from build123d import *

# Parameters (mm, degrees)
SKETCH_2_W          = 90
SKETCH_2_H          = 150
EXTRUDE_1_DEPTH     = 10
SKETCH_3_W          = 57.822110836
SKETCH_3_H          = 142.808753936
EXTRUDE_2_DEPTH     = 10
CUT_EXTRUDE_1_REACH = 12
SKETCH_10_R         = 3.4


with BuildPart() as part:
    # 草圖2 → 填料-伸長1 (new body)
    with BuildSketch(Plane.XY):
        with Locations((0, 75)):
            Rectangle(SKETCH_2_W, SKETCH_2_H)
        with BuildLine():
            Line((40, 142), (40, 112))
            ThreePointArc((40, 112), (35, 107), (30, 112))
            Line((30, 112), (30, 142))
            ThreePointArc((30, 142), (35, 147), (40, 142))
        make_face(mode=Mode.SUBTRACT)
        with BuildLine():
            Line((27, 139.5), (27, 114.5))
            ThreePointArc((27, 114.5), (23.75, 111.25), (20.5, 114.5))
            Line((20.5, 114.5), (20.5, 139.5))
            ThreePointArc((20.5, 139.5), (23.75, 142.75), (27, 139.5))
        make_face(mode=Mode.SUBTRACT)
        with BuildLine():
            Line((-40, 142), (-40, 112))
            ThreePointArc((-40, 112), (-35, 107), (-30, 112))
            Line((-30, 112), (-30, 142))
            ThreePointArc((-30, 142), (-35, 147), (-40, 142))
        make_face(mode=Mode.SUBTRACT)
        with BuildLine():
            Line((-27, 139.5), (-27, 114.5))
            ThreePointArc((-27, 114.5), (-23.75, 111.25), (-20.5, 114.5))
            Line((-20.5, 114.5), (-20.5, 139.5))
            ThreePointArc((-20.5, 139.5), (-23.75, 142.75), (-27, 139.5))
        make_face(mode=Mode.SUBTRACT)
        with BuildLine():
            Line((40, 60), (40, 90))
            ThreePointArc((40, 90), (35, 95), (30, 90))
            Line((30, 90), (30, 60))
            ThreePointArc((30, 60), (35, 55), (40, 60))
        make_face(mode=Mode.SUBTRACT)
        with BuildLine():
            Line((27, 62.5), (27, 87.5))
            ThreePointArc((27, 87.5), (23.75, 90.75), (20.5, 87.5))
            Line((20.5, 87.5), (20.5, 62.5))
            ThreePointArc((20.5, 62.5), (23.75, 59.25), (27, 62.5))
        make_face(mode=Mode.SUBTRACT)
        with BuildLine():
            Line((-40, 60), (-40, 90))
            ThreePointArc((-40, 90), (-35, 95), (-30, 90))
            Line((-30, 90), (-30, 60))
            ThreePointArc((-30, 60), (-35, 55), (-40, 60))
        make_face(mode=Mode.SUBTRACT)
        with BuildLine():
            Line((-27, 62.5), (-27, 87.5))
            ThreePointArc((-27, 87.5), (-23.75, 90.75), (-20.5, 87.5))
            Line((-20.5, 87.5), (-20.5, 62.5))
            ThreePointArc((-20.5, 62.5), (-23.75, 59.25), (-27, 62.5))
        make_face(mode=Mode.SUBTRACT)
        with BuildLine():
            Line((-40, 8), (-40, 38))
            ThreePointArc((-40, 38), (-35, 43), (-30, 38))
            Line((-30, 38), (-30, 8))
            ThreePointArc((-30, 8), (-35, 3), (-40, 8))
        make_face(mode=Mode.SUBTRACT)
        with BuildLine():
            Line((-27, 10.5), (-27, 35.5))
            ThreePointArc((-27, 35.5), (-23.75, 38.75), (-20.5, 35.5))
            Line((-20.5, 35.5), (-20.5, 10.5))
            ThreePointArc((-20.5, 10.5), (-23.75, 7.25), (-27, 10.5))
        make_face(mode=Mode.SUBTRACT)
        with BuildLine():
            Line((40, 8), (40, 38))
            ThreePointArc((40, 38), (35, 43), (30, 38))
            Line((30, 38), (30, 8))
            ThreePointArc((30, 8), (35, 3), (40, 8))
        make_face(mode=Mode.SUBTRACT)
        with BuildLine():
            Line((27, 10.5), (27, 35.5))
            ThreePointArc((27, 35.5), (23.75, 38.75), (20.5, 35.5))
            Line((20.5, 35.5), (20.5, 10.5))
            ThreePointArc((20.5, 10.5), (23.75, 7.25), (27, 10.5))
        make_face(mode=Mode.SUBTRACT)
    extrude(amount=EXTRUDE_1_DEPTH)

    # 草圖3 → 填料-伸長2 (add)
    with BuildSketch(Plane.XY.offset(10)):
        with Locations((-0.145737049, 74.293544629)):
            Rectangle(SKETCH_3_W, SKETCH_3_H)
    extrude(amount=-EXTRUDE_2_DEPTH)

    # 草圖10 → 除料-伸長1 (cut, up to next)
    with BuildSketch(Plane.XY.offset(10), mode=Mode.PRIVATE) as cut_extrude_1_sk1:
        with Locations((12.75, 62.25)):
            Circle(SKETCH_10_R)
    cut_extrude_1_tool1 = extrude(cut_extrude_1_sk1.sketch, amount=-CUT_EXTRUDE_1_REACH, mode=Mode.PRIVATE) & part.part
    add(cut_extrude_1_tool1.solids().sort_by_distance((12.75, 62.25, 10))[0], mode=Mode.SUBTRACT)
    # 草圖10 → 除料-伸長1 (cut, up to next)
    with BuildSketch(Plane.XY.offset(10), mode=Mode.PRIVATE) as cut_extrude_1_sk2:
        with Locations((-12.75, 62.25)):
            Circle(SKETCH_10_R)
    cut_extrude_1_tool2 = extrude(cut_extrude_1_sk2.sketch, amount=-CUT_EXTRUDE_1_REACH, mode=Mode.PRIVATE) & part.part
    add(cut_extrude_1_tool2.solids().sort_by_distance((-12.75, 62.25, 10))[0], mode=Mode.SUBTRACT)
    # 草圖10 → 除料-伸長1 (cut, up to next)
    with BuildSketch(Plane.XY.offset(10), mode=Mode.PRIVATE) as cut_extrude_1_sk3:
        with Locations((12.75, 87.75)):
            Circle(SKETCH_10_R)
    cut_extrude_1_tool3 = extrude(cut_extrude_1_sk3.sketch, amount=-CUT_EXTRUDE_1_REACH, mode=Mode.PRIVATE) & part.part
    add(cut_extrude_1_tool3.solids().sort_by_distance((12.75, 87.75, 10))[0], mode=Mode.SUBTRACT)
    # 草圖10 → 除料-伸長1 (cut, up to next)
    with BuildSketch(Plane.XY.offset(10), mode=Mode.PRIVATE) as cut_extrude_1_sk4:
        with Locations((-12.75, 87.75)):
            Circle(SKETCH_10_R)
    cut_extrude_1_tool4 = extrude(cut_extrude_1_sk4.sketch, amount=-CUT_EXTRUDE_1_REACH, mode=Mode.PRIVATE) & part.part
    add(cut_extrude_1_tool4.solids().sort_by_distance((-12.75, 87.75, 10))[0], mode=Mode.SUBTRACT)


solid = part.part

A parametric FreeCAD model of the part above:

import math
import FreeCAD as App
import Part
import Sketcher
Q = App.Units.Quantity


def add_polygon(sketch, points):
    """Adds a closed chain of lines whose ends are joined by coincident constraints."""
    first, n = sketch.GeometryCount, len(points)
    for a, b in zip(points, points[1:] + points[:1]):
        sketch.addGeometry(Part.LineSegment(App.Vector(*a, 0), App.Vector(*b, 0)), False)
    for i in range(n):
        sketch.addConstraint(Sketcher.Constraint("Coincident", first + i, 2, first + (i + 1) % n, 1))

doc = App.newDocument("Part")
body = doc.addObject("PartDesign::Body", "Body")

# Sketch on XY plane
sketch1 = doc.addObject("Sketcher::SketchObject", "Sketch")
body.addObject(sketch1)
sketch1.AttachmentSupport = (doc.XY_Plane, [""])
sketch1.MapMode = "FlatFace"
add_polygon(sketch1, [(-45, 150), (-45, 0), (45, 0), (45, 150)])  # lines 0-3
sketch1.addGeometry(Part.ArcOfCircle(Part.Circle(App.Vector(-35, 8, 0), App.Vector(0, 0, 1), 5), math.radians(180), math.radians(360)), False)  # 4
sketch1.addGeometry(Part.LineSegment(App.Vector(-40, 8, 0), App.Vector(-40, 38, 0)), False)  # 5
sketch1.addGeometry(Part.ArcOfCircle(Part.Circle(App.Vector(-35, 38, 0), App.Vector(0, 0, 1), 5), math.radians(0), math.radians(180)), False)  # 6
sketch1.addGeometry(Part.LineSegment(App.Vector(-30, 38, 0), App.Vector(-30, 8, 0)), False)  # 7
sketch1.addGeometry(Part.ArcOfCircle(Part.Circle(App.Vector(-23.75, 10.5, 0), App.Vector(0, 0, 1), 3.25), math.radians(180), math.radians(360)), False)  # 8
sketch1.addGeometry(Part.LineSegment(App.Vector(-27, 10.5, 0), App.Vector(-27, 35.5, 0)), False)  # 9
sketch1.addGeometry(Part.ArcOfCircle(Part.Circle(App.Vector(-23.75, 35.5, 0), App.Vector(0, 0, 1), 3.25), math.radians(0), math.radians(180)), False)  # 10
sketch1.addGeometry(Part.LineSegment(App.Vector(-20.5, 35.5, 0), App.Vector(-20.5, 10.5, 0)), False)  # 11
sketch1.addGeometry(Part.LineSegment(App.Vector(27, 35.5, 0), App.Vector(27, 10.5, 0)), False)  # 12
sketch1.addGeometry(Part.ArcOfCircle(Part.Circle(App.Vector(23.75, 10.5, 0), App.Vector(0, 0, 1), 3.25), math.radians(180), math.radians(360)), False)  # 13
sketch1.addGeometry(Part.LineSegment(App.Vector(20.5, 10.5, 0), App.Vector(20.5, 35.5, 0)), False)  # 14
sketch1.addGeometry(Part.ArcOfCircle(Part.Circle(App.Vector(23.75, 35.5, 0), App.Vector(0, 0, 1), 3.25), math.radians(0), math.radians(180)), False)  # 15
sketch1.addGeometry(Part.LineSegment(App.Vector(40, 38, 0), App.Vector(40, 8, 0)), False)  # 16
sketch1.addGeometry(Part.ArcOfCircle(Part.Circle(App.Vector(35, 8, 0), App.Vector(0, 0, 1), 5), math.radians(180), math.radians(360)), False)  # 17
sketch1.addGeometry(Part.LineSegment(App.Vector(30, 8, 0), App.Vector(30, 38, 0)), False)  # 18
sketch1.addGeometry(Part.ArcOfCircle(Part.Circle(App.Vector(35, 38, 0), App.Vector(0, 0, 1), 5), math.radians(0), math.radians(180)), False)  # 19
sketch1.addGeometry(Part.ArcOfCircle(Part.Circle(App.Vector(-35, 60, 0), App.Vector(0, 0, 1), 5), math.radians(180), math.radians(360)), False)  # 20
sketch1.addGeometry(Part.LineSegment(App.Vector(-40, 60, 0), App.Vector(-40, 90, 0)), False)  # 21
sketch1.addGeometry(Part.ArcOfCircle(Part.Circle(App.Vector(-35, 90, 0), App.Vector(0, 0, 1), 5), math.radians(0), math.radians(180)), False)  # 22
sketch1.addGeometry(Part.LineSegment(App.Vector(-30, 90, 0), App.Vector(-30, 60, 0)), False)  # 23
sketch1.addGeometry(Part.ArcOfCircle(Part.Circle(App.Vector(-23.75, 62.5, 0), App.Vector(0, 0, 1), 3.25), math.radians(180), math.radians(360)), False)  # 24
sketch1.addGeometry(Part.LineSegment(App.Vector(-27, 62.5, 0), App.Vector(-27, 87.5, 0)), False)  # 25
sketch1.addGeometry(Part.ArcOfCircle(Part.Circle(App.Vector(-23.75, 87.5, 0), App.Vector(0, 0, 1), 3.25), math.radians(0), math.radians(180)), False)  # 26
sketch1.addGeometry(Part.LineSegment(App.Vector(-20.5, 87.5, 0), App.Vector(-20.5, 62.5, 0)), False)  # 27
sketch1.addGeometry(Part.LineSegment(App.Vector(-40, 112, 0), App.Vector(-40, 142, 0)), False)  # 28
sketch1.addGeometry(Part.ArcOfCircle(Part.Circle(App.Vector(-35, 142, 0), App.Vector(0, 0, 1), 5), math.radians(0), math.radians(180)), False)  # 29
sketch1.addGeometry(Part.LineSegment(App.Vector(-30, 142, 0), App.Vector(-30, 112, 0)), False)  # 30
sketch1.addGeometry(Part.ArcOfCircle(Part.Circle(App.Vector(-35, 112, 0), App.Vector(0, 0, 1), 5), math.radians(180), math.radians(360)), False)  # 31
sketch1.addGeometry(Part.LineSegment(App.Vector(-27, 114.5, 0), App.Vector(-27, 139.5, 0)), False)  # 32
sketch1.addGeometry(Part.ArcOfCircle(Part.Circle(App.Vector(-23.75, 139.5, 0), App.Vector(0, 0, 1), 3.25), math.radians(0), math.radians(180)), False)  # 33
sketch1.addGeometry(Part.LineSegment(App.Vector(-20.5, 139.5, 0), App.Vector(-20.5, 114.5, 0)), False)  # 34
sketch1.addGeometry(Part.ArcOfCircle(Part.Circle(App.Vector(-23.75, 114.5, 0), App.Vector(0, 0, 1), 3.25), math.radians(180), math.radians(360)), False)  # 35
sketch1.addGeometry(Part.LineSegment(App.Vector(27, 87.5, 0), App.Vector(27, 62.5, 0)), False)  # 36
sketch1.addGeometry(Part.ArcOfCircle(Part.Circle(App.Vector(23.75, 62.5, 0), App.Vector(0, 0, 1), 3.25), math.radians(180), math.radians(360)), False)  # 37
sketch1.addGeometry(Part.LineSegment(App.Vector(20.5, 62.5, 0), App.Vector(20.5, 87.5, 0)), False)  # 38
sketch1.addGeometry(Part.ArcOfCircle(Part.Circle(App.Vector(23.75, 87.5, 0), App.Vector(0, 0, 1), 3.25), math.radians(0), math.radians(180)), False)  # 39
sketch1.addGeometry(Part.LineSegment(App.Vector(40, 90, 0), App.Vector(40, 60, 0)), False)  # 40
sketch1.addGeometry(Part.ArcOfCircle(Part.Circle(App.Vector(35, 60, 0), App.Vector(0, 0, 1), 5), math.radians(180), math.radians(360)), False)  # 41
sketch1.addGeometry(Part.LineSegment(App.Vector(30, 60, 0), App.Vector(30, 90, 0)), False)  # 42
sketch1.addGeometry(Part.ArcOfCircle(Part.Circle(App.Vector(35, 90, 0), App.Vector(0, 0, 1), 5), math.radians(0), math.radians(180)), False)  # 43
sketch1.addGeometry(Part.ArcOfCircle(Part.Circle(App.Vector(23.75, 139.5, 0), App.Vector(0, 0, 1), 3.25), math.radians(0), math.radians(180)), False)  # 44
sketch1.addGeometry(Part.LineSegment(App.Vector(27, 139.5, 0), App.Vector(27, 114.5, 0)), False)  # 45
sketch1.addGeometry(Part.ArcOfCircle(Part.Circle(App.Vector(23.75, 114.5, 0), App.Vector(0, 0, 1), 3.25), math.radians(180), math.radians(360)), False)  # 46
sketch1.addGeometry(Part.LineSegment(App.Vector(20.5, 114.5, 0), App.Vector(20.5, 139.5, 0)), False)  # 47
sketch1.addGeometry(Part.ArcOfCircle(Part.Circle(App.Vector(35, 142, 0), App.Vector(0, 0, 1), 5), math.radians(0), math.radians(180)), False)  # 48
sketch1.addGeometry(Part.LineSegment(App.Vector(40, 142, 0), App.Vector(40, 112, 0)), False)  # 49
sketch1.addGeometry(Part.ArcOfCircle(Part.Circle(App.Vector(35, 112, 0), App.Vector(0, 0, 1), 5), math.radians(180), math.radians(360)), False)  # 50
sketch1.addGeometry(Part.LineSegment(App.Vector(30, 112, 0), App.Vector(30, 142, 0)), False)  # 51
sketch1.addConstraint(Sketcher.Constraint("Tangent", 4, 1, 5, 1))
sketch1.addConstraint(Sketcher.Constraint("Tangent", 5, 2, 6, 2))
sketch1.addConstraint(Sketcher.Constraint("Tangent", 6, 1, 7, 1))
sketch1.addConstraint(Sketcher.Constraint("Tangent", 7, 2, 4, 2))
sketch1.addConstraint(Sketcher.Constraint("Tangent", 8, 1, 9, 1))
sketch1.addConstraint(Sketcher.Constraint("Tangent", 9, 2, 10, 2))
sketch1.addConstraint(Sketcher.Constraint("Tangent", 10, 1, 11, 1))
sketch1.addConstraint(Sketcher.Constraint("Tangent", 11, 2, 8, 2))
sketch1.addConstraint(Sketcher.Constraint("Tangent", 12, 2, 13, 2))
sketch1.addConstraint(Sketcher.Constraint("Tangent", 13, 1, 14, 1))
sketch1.addConstraint(Sketcher.Constraint("Tangent", 14, 2, 15, 2))
sketch1.addConstraint(Sketcher.Constraint("Tangent", 15, 1, 12, 1))
sketch1.addConstraint(Sketcher.Constraint("Tangent", 16, 2, 17, 2))
sketch1.addConstraint(Sketcher.Constraint("Tangent", 17, 1, 18, 1))
sketch1.addConstraint(Sketcher.Constraint("Tangent", 18, 2, 19, 2))
sketch1.addConstraint(Sketcher.Constraint("Tangent", 19, 1, 16, 1))
sketch1.addConstraint(Sketcher.Constraint("Tangent", 20, 1, 21, 1))
sketch1.addConstraint(Sketcher.Constraint("Tangent", 21, 2, 22, 2))
sketch1.addConstraint(Sketcher.Constraint("Tangent", 22, 1, 23, 1))
sketch1.addConstraint(Sketcher.Constraint("Tangent", 23, 2, 20, 2))
sketch1.addConstraint(Sketcher.Constraint("Tangent", 24, 1, 25, 1))
sketch1.addConstraint(Sketcher.Constraint("Tangent", 25, 2, 26, 2))
sketch1.addConstraint(Sketcher.Constraint("Tangent", 26, 1, 27, 1))
sketch1.addConstraint(Sketcher.Constraint("Tangent", 27, 2, 24, 2))
sketch1.addConstraint(Sketcher.Constraint("Tangent", 28, 2, 29, 2))
sketch1.addConstraint(Sketcher.Constraint("Tangent", 29, 1, 30, 1))
sketch1.addConstraint(Sketcher.Constraint("Tangent", 30, 2, 31, 2))
sketch1.addConstraint(Sketcher.Constraint("Tangent", 31, 1, 28, 1))
sketch1.addConstraint(Sketcher.Constraint("Tangent", 32, 2, 33, 2))
sketch1.addConstraint(Sketcher.Constraint("Tangent", 33, 1, 34, 1))
sketch1.addConstraint(Sketcher.Constraint("Tangent", 34, 2, 35, 2))
sketch1.addConstraint(Sketcher.Constraint("Tangent", 35, 1, 32, 1))
sketch1.addConstraint(Sketcher.Constraint("Tangent", 36, 2, 37, 2))
sketch1.addConstraint(Sketcher.Constraint("Tangent", 37, 1, 38, 1))
sketch1.addConstraint(Sketcher.Constraint("Tangent", 38, 2, 39, 2))
sketch1.addConstraint(Sketcher.Constraint("Tangent", 39, 1, 36, 1))
sketch1.addConstraint(Sketcher.Constraint("Tangent", 40, 2, 41, 2))
sketch1.addConstraint(Sketcher.Constraint("Tangent", 41, 1, 42, 1))
sketch1.addConstraint(Sketcher.Constraint("Tangent", 42, 2, 43, 2))
sketch1.addConstraint(Sketcher.Constraint("Tangent", 43, 1, 40, 1))
sketch1.addConstraint(Sketcher.Constraint("Tangent", 44, 1, 45, 1))
sketch1.addConstraint(Sketcher.Constraint("Tangent", 45, 2, 46, 2))
sketch1.addConstraint(Sketcher.Constraint("Tangent", 46, 1, 47, 1))
sketch1.addConstraint(Sketcher.Constraint("Tangent", 47, 2, 44, 2))
sketch1.addConstraint(Sketcher.Constraint("Tangent", 48, 1, 49, 1))
sketch1.addConstraint(Sketcher.Constraint("Tangent", 49, 2, 50, 2))
sketch1.addConstraint(Sketcher.Constraint("Tangent", 50, 1, 51, 1))
sketch1.addConstraint(Sketcher.Constraint("Tangent", 51, 2, 48, 2))
sketch1.addConstraint(Sketcher.Constraint("Vertical", 0))
sketch1.addConstraint(Sketcher.Constraint("Horizontal", 1))
sketch1.addConstraint(Sketcher.Constraint("Vertical", 2))
sketch1.addConstraint(Sketcher.Constraint("Horizontal", 3))
sketch1.addConstraint(Sketcher.Constraint("Vertical", 5))
sketch1.addConstraint(Sketcher.Constraint("Vertical", 7))
sketch1.addConstraint(Sketcher.Constraint("Vertical", 9))
sketch1.addConstraint(Sketcher.Constraint("Vertical", 11))
sketch1.addConstraint(Sketcher.Constraint("Vertical", 12))
sketch1.addConstraint(Sketcher.Constraint("Vertical", 14))
sketch1.addConstraint(Sketcher.Constraint("Vertical", 16))
sketch1.addConstraint(Sketcher.Constraint("Vertical", 18))
sketch1.addConstraint(Sketcher.Constraint("Vertical", 21))
sketch1.addConstraint(Sketcher.Constraint("Vertical", 23))
sketch1.addConstraint(Sketcher.Constraint("Vertical", 25))
sketch1.addConstraint(Sketcher.Constraint("Vertical", 27))
sketch1.addConstraint(Sketcher.Constraint("Vertical", 28))
sketch1.addConstraint(Sketcher.Constraint("Vertical", 30))
sketch1.addConstraint(Sketcher.Constraint("Vertical", 32))
sketch1.addConstraint(Sketcher.Constraint("Vertical", 34))
sketch1.addConstraint(Sketcher.Constraint("Vertical", 36))
sketch1.addConstraint(Sketcher.Constraint("Vertical", 38))
sketch1.addConstraint(Sketcher.Constraint("Vertical", 40))
sketch1.addConstraint(Sketcher.Constraint("Vertical", 42))
sketch1.addConstraint(Sketcher.Constraint("Vertical", 45))
sketch1.addConstraint(Sketcher.Constraint("Vertical", 47))
sketch1.addConstraint(Sketcher.Constraint("Vertical", 49))
sketch1.addConstraint(Sketcher.Constraint("Vertical", 51))
sketch1.addConstraint(Sketcher.Constraint("Equal", 10, 13))
sketch1.addConstraint(Sketcher.Constraint("Equal", 6, 17))
sketch1.addConstraint(Sketcher.Constraint("Equal", 19, 20))
sketch1.addConstraint(Sketcher.Constraint("Equal", 15, 24))
sketch1.addConstraint(Sketcher.Constraint("Equal", 22, 29))
sketch1.addConstraint(Sketcher.Constraint("Equal", 26, 33))
sketch1.addConstraint(Sketcher.Constraint("Equal", 35, 37))
sketch1.addConstraint(Sketcher.Constraint("Equal", 31, 41))
sketch1.addConstraint(Sketcher.Constraint("Equal", 39, 44))
sketch1.addConstraint(Sketcher.Constraint("Equal", 43, 48))
sketch1.addConstraint(Sketcher.Constraint("Symmetric", 0, 2, 1, 2, -1, 1))
sketch1.addConstraint(Sketcher.Constraint("Symmetric", 8, 3, 13, 3, -2))
sketch1.addConstraint(Sketcher.Constraint("Symmetric", 4, 3, 17, 3, -2))
sketch1.addConstraint(Sketcher.Constraint("Symmetric", 24, 3, 37, 3, -2))
sketch1.addConstraint(Sketcher.Constraint("Symmetric", 20, 3, 41, 3, -2))
sketch1.addConstraint(Sketcher.Constraint("Symmetric", 33, 3, 44, 3, -2))
sketch1.addConstraint(Sketcher.Constraint("Symmetric", 29, 3, 48, 3, -2))
sketch1.addConstraint(Sketcher.Constraint("Horizontal", 10, 3, 15, 3))
sketch1.addConstraint(Sketcher.Constraint("Horizontal", 6, 3, 19, 3))
sketch1.addConstraint(Sketcher.Constraint("Horizontal", 26, 3, 39, 3))
sketch1.addConstraint(Sketcher.Constraint("Horizontal", 22, 3, 43, 3))
sketch1.addConstraint(Sketcher.Constraint("Horizontal", 35, 3, 46, 3))
sketch1.addConstraint(Sketcher.Constraint("Horizontal", 31, 3, 50, 3))
sketch1.addConstraint(Sketcher.Constraint("Vertical", 6, 3, 20, 3))
sketch1.addConstraint(Sketcher.Constraint("Vertical", 10, 3, 24, 3))
sketch1.addConstraint(Sketcher.Constraint("Vertical", 22, 3, 29, 3))
sketch1.addConstraint(Sketcher.Constraint("Vertical", 26, 3, 33, 3))
sketch1.addConstraint(Sketcher.Constraint("Equal", 18, 21))
sketch1.addConstraint(Sketcher.Constraint("Equal", 14, 25))
sketch1.addConstraint(Sketcher.Constraint("Equal", 23, 28))
sketch1.addConstraint(Sketcher.Constraint("Equal", 27, 32))
sketch1.addConstraint(Sketcher.Constraint("Radius", 4, Q("5 mm")))
sketch1.addConstraint(Sketcher.Constraint("DistanceX", 1, 1, 1, 2, Q("90 mm")))
sketch1.addConstraint(Sketcher.Constraint("DistanceY", 0, 2, 0, 1, Q("150 mm")))
sketch1.addConstraint(Sketcher.Constraint("DistanceY", 5, 1, 5, 2, Q("30 mm")))
sketch1.addConstraint(Sketcher.Constraint("DistanceY", 9, 1, 9, 2, Q("25 mm")))
sketch1.addConstraint(Sketcher.Constraint("Radius", 8, Q("3.25 mm")))
sketch1.addConstraint(Sketcher.Constraint("DistanceX", 4, 3, -1, 1, Q("35 mm")))
sketch1.addConstraint(Sketcher.Constraint("DistanceY", -1, 1, 4, 3, Q("8 mm")))
sketch1.addConstraint(Sketcher.Constraint("DistanceY", -1, 1, 20, 3, Q("60 mm")))
sketch1.addConstraint(Sketcher.Constraint("DistanceY", -1, 1, 29, 3, Q("142 mm")))
sketch1.addConstraint(Sketcher.Constraint("DistanceX", 8, 1, -1, 1, Q("27 mm")))
sketch1.addConstraint(Sketcher.Constraint("DistanceY", -1, 1, 8, 3, Q("10.5 mm")))
sketch1.addConstraint(Sketcher.Constraint("DistanceY", -1, 1, 24, 3, Q("62.5 mm")))
sketch1.addConstraint(Sketcher.Constraint("DistanceY", -1, 1, 33, 3, Q("139.5 mm")))
pad1 = doc.addObject("PartDesign::Pad", "Pad")
body.addObject(pad1)
pad1.Profile = sketch1
pad1.Length = 10

# Sketch on XY plane
sketch2 = doc.addObject("Sketcher::SketchObject", "Sketch001")
body.addObject(sketch2)
sketch2.AttachmentSupport = (doc.XY_Plane, [""])
sketch2.MapMode = "FlatFace"
sketch2.AttachmentOffset = App.Placement(App.Vector(0, 0, 10), App.Rotation())
add_polygon(sketch2, [(-29.056792, 145.697922), (-29.056792, 2.889168), (28.765318, 2.889168), (28.765318, 145.697922)])  # lines 0-3
sketch2.addConstraint(Sketcher.Constraint("Vertical", 0))
sketch2.addConstraint(Sketcher.Constraint("Horizontal", 1))
sketch2.addConstraint(Sketcher.Constraint("Vertical", 2))
sketch2.addConstraint(Sketcher.Constraint("Horizontal", 3))
sketch2.addConstraint(Sketcher.Constraint("DistanceX", 1, 1, 1, 2, Q("57.822111 mm")))
sketch2.addConstraint(Sketcher.Constraint("DistanceY", 0, 2, 0, 1, Q("142.808754 mm")))
sketch2.addConstraint(Sketcher.Constraint("DistanceX", -1, 1, 1, 2, Q("28.765318 mm")))
sketch2.addConstraint(Sketcher.Constraint("DistanceY", -1, 1, 2, 2, Q("145.697922 mm")))
pad2 = doc.addObject("PartDesign::Pad", "Pad001")
body.addObject(pad2)
pad2.Profile = sketch2
pad2.Length = 10
pad2.Reversed = True

# Sketch on XY plane
sketch3 = doc.addObject("Sketcher::SketchObject", "Sketch002")
body.addObject(sketch3)
sketch3.AttachmentSupport = (doc.XY_Plane, [""])
sketch3.MapMode = "FlatFace"
sketch3.AttachmentOffset = App.Placement(App.Vector(0, 0, 10), App.Rotation())
sketch3.addGeometry(Part.Circle(App.Vector(12.75, 62.25, 0), App.Vector(0, 0, 1), 3.4), False)
sketch3.addConstraint(Sketcher.Constraint("Diameter", 0, Q("6.8 mm")))
sketch3.addConstraint(Sketcher.Constraint("DistanceX", -1, 1, 0, 3, Q("12.75 mm")))
sketch3.addConstraint(Sketcher.Constraint("DistanceY", -1, 1, 0, 3, Q("62.25 mm")))
pocket1 = doc.addObject("PartDesign::Pocket", "Pocket")
body.addObject(pocket1)
pocket1.Profile = sketch3
pocket1.Type = "UpToFirst"

# Sketch on XY plane
sketch4 = doc.addObject("Sketcher::SketchObject", "Sketch003")
body.addObject(sketch4)
sketch4.AttachmentSupport = (doc.XY_Plane, [""])
sketch4.MapMode = "FlatFace"
sketch4.AttachmentOffset = App.Placement(App.Vector(0, 0, 10), App.Rotation())
sketch4.addGeometry(Part.Circle(App.Vector(-12.75, 62.25, 0), App.Vector(0, 0, 1), 3.4), False)
sketch4.addConstraint(Sketcher.Constraint("Diameter", 0, Q("6.8 mm")))
sketch4.addConstraint(Sketcher.Constraint("DistanceX", 0, 3, -1, 1, Q("12.75 mm")))
sketch4.addConstraint(Sketcher.Constraint("DistanceY", -1, 1, 0, 3, Q("62.25 mm")))
pocket2 = doc.addObject("PartDesign::Pocket", "Pocket001")
body.addObject(pocket2)
pocket2.Profile = sketch4
pocket2.Type = "UpToFirst"

# Sketch on XY plane
sketch5 = doc.addObject("Sketcher::SketchObject", "Sketch004")
body.addObject(sketch5)
sketch5.AttachmentSupport = (doc.XY_Plane, [""])
sketch5.MapMode = "FlatFace"
sketch5.AttachmentOffset = App.Placement(App.Vector(0, 0, 10), App.Rotation())
sketch5.addGeometry(Part.Circle(App.Vector(12.75, 87.75, 0), App.Vector(0, 0, 1), 3.4), False)
sketch5.addConstraint(Sketcher.Constraint("Diameter", 0, Q("6.8 mm")))
sketch5.addConstraint(Sketcher.Constraint("DistanceX", -1, 1, 0, 3, Q("12.75 mm")))
sketch5.addConstraint(Sketcher.Constraint("DistanceY", -1, 1, 0, 3, Q("87.75 mm")))
pocket3 = doc.addObject("PartDesign::Pocket", "Pocket002")
body.addObject(pocket3)
pocket3.Profile = sketch5
pocket3.Type = "UpToFirst"

# Sketch on XY plane
sketch6 = doc.addObject("Sketcher::SketchObject", "Sketch005")
body.addObject(sketch6)
sketch6.AttachmentSupport = (doc.XY_Plane, [""])
sketch6.MapMode = "FlatFace"
sketch6.AttachmentOffset = App.Placement(App.Vector(0, 0, 10), App.Rotation())
sketch6.addGeometry(Part.Circle(App.Vector(-12.75, 87.75, 0), App.Vector(0, 0, 1), 3.4), False)
sketch6.addConstraint(Sketcher.Constraint("Diameter", 0, Q("6.8 mm")))
sketch6.addConstraint(Sketcher.Constraint("DistanceX", 0, 3, -1, 1, Q("12.75 mm")))
sketch6.addConstraint(Sketcher.Constraint("DistanceY", -1, 1, 0, 3, Q("87.75 mm")))
pocket4 = doc.addObject("PartDesign::Pocket", "Pocket003")
body.addObject(pocket4)
pocket4.Profile = sketch6
pocket4.Type = "UpToFirst"

doc.recompute()
